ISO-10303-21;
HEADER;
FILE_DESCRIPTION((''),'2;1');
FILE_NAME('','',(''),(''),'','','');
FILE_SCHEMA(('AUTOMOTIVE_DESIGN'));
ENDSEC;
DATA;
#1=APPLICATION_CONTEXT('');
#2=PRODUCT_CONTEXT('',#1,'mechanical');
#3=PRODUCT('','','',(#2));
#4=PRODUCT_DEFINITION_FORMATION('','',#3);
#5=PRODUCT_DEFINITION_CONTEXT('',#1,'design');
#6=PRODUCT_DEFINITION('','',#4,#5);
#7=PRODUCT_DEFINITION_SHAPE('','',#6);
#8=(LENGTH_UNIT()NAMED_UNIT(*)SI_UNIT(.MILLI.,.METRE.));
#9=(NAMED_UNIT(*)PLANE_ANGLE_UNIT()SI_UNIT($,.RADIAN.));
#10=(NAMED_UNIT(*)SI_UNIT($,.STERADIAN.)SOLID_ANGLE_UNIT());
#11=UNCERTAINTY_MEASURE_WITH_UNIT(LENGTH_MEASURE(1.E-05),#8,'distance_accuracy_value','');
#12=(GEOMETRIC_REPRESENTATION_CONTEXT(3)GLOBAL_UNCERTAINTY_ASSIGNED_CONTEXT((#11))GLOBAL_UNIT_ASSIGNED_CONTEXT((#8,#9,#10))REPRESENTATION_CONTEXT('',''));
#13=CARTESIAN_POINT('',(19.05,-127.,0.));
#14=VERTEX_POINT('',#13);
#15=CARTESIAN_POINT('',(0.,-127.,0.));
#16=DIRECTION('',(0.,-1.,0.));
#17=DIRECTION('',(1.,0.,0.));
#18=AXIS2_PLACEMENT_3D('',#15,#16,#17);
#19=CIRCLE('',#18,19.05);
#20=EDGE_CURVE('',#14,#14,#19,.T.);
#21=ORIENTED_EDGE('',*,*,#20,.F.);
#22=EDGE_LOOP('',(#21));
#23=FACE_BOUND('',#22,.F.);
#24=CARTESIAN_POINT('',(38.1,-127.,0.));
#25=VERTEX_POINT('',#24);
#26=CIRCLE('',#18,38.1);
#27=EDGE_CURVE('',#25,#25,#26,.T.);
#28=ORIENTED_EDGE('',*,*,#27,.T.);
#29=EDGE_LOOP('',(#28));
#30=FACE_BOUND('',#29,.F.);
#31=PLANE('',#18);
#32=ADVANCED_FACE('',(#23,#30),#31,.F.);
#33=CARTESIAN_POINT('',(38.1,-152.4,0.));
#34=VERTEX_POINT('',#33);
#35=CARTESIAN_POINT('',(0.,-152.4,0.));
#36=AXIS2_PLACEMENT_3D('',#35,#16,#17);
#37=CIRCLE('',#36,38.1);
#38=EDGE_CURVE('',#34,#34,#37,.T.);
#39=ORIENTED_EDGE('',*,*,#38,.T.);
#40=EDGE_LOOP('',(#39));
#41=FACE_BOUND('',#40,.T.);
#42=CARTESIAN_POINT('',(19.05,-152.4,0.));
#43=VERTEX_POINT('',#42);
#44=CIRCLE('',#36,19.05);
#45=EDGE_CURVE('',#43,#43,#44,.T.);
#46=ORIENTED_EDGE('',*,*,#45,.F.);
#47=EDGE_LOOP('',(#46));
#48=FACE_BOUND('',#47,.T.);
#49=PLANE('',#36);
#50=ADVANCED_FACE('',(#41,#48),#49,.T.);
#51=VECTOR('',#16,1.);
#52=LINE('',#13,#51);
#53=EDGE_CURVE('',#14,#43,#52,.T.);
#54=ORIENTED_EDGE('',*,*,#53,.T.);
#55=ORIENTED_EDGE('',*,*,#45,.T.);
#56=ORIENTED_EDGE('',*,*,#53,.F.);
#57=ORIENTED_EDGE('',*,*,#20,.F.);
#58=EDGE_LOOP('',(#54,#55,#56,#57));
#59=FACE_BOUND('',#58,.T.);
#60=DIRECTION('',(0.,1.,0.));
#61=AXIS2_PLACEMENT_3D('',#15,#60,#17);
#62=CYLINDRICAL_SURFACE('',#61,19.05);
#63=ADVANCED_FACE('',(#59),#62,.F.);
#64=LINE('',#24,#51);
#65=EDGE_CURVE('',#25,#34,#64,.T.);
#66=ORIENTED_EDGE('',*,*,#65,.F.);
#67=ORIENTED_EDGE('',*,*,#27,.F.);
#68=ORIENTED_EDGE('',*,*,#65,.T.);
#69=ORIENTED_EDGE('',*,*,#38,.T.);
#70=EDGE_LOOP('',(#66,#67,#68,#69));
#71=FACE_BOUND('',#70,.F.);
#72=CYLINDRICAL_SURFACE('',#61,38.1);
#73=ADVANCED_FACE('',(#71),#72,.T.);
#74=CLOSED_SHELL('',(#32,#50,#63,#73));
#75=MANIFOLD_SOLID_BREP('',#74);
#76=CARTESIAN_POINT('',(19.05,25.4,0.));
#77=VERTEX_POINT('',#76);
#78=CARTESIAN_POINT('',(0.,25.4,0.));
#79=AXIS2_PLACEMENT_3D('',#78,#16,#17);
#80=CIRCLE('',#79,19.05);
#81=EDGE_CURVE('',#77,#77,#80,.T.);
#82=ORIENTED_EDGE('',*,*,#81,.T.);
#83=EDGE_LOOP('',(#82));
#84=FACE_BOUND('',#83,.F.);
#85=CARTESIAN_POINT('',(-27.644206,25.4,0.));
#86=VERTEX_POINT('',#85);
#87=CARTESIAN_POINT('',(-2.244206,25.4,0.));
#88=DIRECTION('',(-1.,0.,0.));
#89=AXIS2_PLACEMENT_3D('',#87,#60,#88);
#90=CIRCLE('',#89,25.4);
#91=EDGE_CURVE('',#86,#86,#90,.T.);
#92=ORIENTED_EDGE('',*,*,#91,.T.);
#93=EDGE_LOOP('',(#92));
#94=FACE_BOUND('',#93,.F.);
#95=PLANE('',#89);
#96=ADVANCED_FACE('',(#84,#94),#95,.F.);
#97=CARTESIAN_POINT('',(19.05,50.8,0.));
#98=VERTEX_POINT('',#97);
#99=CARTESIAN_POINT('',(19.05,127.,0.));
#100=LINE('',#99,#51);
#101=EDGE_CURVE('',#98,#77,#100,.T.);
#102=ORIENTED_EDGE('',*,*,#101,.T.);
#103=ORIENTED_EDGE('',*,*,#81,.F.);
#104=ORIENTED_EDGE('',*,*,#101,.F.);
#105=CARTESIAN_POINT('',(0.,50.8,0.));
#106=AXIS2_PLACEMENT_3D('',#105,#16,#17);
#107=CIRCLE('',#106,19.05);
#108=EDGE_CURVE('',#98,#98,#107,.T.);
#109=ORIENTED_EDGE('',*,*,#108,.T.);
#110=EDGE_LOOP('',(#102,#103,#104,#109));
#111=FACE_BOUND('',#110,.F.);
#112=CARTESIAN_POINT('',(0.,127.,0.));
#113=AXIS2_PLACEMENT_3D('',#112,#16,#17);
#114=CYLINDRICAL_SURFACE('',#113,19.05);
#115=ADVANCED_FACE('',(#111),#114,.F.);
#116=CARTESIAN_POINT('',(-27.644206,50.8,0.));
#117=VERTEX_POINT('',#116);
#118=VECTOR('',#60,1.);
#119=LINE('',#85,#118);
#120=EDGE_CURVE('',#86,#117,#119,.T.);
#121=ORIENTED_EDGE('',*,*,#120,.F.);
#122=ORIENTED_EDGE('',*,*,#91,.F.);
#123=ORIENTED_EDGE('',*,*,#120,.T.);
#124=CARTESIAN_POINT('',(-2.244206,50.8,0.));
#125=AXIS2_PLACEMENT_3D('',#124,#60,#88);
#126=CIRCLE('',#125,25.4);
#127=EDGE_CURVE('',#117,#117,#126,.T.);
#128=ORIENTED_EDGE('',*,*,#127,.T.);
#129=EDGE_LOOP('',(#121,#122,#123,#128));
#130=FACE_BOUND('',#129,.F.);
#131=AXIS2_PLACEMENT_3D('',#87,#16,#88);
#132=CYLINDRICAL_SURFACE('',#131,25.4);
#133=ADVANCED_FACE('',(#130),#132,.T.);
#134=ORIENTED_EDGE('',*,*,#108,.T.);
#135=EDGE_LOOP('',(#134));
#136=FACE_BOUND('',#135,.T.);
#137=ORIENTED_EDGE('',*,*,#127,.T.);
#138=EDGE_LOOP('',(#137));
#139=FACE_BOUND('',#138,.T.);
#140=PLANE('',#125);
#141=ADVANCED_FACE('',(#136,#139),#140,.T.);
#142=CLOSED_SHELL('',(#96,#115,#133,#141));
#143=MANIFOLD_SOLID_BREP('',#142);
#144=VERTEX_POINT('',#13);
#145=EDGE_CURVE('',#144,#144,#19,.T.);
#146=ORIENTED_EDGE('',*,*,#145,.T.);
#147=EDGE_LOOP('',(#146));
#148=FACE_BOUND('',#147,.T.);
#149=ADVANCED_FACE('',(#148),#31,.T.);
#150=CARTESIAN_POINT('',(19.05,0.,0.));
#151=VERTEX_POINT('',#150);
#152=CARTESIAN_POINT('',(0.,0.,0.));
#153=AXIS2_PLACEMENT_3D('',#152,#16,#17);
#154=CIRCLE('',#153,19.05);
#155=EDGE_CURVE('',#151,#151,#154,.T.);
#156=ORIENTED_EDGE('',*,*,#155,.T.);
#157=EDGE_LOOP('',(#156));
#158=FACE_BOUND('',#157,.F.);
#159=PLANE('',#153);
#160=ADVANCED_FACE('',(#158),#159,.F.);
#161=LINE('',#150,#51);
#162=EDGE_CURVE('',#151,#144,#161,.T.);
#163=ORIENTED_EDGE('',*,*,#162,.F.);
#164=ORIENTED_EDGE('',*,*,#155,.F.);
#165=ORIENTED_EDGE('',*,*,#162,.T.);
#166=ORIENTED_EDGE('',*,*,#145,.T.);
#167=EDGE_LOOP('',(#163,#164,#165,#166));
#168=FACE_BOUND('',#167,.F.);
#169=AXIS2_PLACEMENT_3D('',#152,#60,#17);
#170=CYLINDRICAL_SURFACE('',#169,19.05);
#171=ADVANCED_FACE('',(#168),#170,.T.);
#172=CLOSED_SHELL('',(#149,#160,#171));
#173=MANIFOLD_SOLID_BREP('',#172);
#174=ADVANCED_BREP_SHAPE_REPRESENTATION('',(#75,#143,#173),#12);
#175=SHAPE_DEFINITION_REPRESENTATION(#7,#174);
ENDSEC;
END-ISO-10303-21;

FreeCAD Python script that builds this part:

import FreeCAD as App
import Part
import Sketcher
from FreeCAD import Vector
Q = App.Units.Quantity

doc = App.newDocument("Part")
body = doc.addObject("PartDesign::Body", "Body")

# Sketch on XZ plane
sketch1 = body.newObject("Sketcher::SketchObject", "Sketch")
sketch1.AttachmentSupport = (doc.getObject("XZ_Plane"), [""])
sketch1.MapMode = "FlatFace"
sketch1.addGeometry(Part.Circle(Vector(0, 0, 0), Vector(0, 0, 1), 19), False)
sketch1.addConstraint([
    Sketcher.Constraint("Coincident", 0, 3, -1, 1),
    Sketcher.Constraint("Diameter", 0, Q("1.5 in")),
])
pad1 = body.newObject("PartDesign::Pad", "Pad")
pad1.Profile = sketch1
pad1.Length = Q("5 in")
body2 = doc.addObject("PartDesign::Body", "Body001")

# Sketch on XZ plane
sketch2 = body2.newObject("Sketcher::SketchObject", "Sketch001")
sketch2.AttachmentSupport = (doc.getObject("XZ_Plane001"), [""])
sketch2.MapMode = "FlatFace"
sketch2.AttachmentOffset = App.Placement(Vector(0, 0, -1 * 25.4), App.Rotation())
sketch2.addGeometry(Part.Circle(Vector(-2, 0, 0), Vector(0, 0, 1), 25), False)
sketch2.addConstraint([
    Sketcher.Constraint("PointOnObject", 0, 3, -1),
    Sketcher.Constraint("Diameter", 0, Q("2 in")),
    Sketcher.Constraint("DistanceX", 0, 3, -1, 1, 2.244206),
])
pad2 = body2.newObject("PartDesign::Pad", "Pad001")
pad2.Profile = sketch2
pad2.Length = Q("1 in")
pad2.Reversed = True

# Sketch on XZ plane
sketch3 = body2.newObject("Sketcher::SketchObject", "Sketch002")
sketch3.AttachmentSupport = (doc.getObject("XZ_Plane001"), [""])
sketch3.MapMode = "FlatFace"
sketch3.AttachmentOffset = App.Placement(Vector(0, 0, -2 * 25.4), App.Rotation())
sketch3.addGeometry(Part.Circle(Vector(0, 0, 0), Vector(0, 0, 1), 19), False)
sketch3.addConstraint([
    Sketcher.Constraint("Coincident", 0, 3, -1, 1),
    Sketcher.Constraint("Diameter", 0, Q("1.5 in")),
])
doc.recompute()
hole = body2.newObject("PartDesign::Hole", "Hole")
hole.Profile = sketch3
hole.ThreadType = "None"
hole.Diameter = Q("1.5 in")
hole.DepthType = "ThroughAll"
hole.Reversed = True
body3 = doc.addObject("PartDesign::Body", "Body002")

# Sketch on XZ plane
sketch4 = body3.newObject("Sketcher::SketchObject", "Sketch003")
sketch4.AttachmentSupport = (doc.getObject("XZ_Plane002"), [""])
sketch4.MapMode = "FlatFace"
sketch4.AttachmentOffset = App.Placement(Vector(0, 0, 5 * 25.4), App.Rotation())
sketch4.addGeometry([
    Part.Circle(Vector(0, 0, 0), Vector(0, 0, 1), 38),
    Part.Circle(Vector(0, 0, 0), Vector(0, 0, 1), 19),
], False)
sketch4.addConstraint([
    Sketcher.Constraint("Coincident", 0, 3, -1, 1),
    Sketcher.Constraint("Coincident", 1, 3, -1, 1),
    Sketcher.Constraint("Diameter", 0, Q("3 in")),
    Sketcher.Constraint("Diameter", 1, Q("1.5 in")),
])
pad3 = body3.newObject("PartDesign::Pad", "Pad002")
pad3.Profile = sketch4
pad3.Length = Q("1 in")

doc.recompute()
